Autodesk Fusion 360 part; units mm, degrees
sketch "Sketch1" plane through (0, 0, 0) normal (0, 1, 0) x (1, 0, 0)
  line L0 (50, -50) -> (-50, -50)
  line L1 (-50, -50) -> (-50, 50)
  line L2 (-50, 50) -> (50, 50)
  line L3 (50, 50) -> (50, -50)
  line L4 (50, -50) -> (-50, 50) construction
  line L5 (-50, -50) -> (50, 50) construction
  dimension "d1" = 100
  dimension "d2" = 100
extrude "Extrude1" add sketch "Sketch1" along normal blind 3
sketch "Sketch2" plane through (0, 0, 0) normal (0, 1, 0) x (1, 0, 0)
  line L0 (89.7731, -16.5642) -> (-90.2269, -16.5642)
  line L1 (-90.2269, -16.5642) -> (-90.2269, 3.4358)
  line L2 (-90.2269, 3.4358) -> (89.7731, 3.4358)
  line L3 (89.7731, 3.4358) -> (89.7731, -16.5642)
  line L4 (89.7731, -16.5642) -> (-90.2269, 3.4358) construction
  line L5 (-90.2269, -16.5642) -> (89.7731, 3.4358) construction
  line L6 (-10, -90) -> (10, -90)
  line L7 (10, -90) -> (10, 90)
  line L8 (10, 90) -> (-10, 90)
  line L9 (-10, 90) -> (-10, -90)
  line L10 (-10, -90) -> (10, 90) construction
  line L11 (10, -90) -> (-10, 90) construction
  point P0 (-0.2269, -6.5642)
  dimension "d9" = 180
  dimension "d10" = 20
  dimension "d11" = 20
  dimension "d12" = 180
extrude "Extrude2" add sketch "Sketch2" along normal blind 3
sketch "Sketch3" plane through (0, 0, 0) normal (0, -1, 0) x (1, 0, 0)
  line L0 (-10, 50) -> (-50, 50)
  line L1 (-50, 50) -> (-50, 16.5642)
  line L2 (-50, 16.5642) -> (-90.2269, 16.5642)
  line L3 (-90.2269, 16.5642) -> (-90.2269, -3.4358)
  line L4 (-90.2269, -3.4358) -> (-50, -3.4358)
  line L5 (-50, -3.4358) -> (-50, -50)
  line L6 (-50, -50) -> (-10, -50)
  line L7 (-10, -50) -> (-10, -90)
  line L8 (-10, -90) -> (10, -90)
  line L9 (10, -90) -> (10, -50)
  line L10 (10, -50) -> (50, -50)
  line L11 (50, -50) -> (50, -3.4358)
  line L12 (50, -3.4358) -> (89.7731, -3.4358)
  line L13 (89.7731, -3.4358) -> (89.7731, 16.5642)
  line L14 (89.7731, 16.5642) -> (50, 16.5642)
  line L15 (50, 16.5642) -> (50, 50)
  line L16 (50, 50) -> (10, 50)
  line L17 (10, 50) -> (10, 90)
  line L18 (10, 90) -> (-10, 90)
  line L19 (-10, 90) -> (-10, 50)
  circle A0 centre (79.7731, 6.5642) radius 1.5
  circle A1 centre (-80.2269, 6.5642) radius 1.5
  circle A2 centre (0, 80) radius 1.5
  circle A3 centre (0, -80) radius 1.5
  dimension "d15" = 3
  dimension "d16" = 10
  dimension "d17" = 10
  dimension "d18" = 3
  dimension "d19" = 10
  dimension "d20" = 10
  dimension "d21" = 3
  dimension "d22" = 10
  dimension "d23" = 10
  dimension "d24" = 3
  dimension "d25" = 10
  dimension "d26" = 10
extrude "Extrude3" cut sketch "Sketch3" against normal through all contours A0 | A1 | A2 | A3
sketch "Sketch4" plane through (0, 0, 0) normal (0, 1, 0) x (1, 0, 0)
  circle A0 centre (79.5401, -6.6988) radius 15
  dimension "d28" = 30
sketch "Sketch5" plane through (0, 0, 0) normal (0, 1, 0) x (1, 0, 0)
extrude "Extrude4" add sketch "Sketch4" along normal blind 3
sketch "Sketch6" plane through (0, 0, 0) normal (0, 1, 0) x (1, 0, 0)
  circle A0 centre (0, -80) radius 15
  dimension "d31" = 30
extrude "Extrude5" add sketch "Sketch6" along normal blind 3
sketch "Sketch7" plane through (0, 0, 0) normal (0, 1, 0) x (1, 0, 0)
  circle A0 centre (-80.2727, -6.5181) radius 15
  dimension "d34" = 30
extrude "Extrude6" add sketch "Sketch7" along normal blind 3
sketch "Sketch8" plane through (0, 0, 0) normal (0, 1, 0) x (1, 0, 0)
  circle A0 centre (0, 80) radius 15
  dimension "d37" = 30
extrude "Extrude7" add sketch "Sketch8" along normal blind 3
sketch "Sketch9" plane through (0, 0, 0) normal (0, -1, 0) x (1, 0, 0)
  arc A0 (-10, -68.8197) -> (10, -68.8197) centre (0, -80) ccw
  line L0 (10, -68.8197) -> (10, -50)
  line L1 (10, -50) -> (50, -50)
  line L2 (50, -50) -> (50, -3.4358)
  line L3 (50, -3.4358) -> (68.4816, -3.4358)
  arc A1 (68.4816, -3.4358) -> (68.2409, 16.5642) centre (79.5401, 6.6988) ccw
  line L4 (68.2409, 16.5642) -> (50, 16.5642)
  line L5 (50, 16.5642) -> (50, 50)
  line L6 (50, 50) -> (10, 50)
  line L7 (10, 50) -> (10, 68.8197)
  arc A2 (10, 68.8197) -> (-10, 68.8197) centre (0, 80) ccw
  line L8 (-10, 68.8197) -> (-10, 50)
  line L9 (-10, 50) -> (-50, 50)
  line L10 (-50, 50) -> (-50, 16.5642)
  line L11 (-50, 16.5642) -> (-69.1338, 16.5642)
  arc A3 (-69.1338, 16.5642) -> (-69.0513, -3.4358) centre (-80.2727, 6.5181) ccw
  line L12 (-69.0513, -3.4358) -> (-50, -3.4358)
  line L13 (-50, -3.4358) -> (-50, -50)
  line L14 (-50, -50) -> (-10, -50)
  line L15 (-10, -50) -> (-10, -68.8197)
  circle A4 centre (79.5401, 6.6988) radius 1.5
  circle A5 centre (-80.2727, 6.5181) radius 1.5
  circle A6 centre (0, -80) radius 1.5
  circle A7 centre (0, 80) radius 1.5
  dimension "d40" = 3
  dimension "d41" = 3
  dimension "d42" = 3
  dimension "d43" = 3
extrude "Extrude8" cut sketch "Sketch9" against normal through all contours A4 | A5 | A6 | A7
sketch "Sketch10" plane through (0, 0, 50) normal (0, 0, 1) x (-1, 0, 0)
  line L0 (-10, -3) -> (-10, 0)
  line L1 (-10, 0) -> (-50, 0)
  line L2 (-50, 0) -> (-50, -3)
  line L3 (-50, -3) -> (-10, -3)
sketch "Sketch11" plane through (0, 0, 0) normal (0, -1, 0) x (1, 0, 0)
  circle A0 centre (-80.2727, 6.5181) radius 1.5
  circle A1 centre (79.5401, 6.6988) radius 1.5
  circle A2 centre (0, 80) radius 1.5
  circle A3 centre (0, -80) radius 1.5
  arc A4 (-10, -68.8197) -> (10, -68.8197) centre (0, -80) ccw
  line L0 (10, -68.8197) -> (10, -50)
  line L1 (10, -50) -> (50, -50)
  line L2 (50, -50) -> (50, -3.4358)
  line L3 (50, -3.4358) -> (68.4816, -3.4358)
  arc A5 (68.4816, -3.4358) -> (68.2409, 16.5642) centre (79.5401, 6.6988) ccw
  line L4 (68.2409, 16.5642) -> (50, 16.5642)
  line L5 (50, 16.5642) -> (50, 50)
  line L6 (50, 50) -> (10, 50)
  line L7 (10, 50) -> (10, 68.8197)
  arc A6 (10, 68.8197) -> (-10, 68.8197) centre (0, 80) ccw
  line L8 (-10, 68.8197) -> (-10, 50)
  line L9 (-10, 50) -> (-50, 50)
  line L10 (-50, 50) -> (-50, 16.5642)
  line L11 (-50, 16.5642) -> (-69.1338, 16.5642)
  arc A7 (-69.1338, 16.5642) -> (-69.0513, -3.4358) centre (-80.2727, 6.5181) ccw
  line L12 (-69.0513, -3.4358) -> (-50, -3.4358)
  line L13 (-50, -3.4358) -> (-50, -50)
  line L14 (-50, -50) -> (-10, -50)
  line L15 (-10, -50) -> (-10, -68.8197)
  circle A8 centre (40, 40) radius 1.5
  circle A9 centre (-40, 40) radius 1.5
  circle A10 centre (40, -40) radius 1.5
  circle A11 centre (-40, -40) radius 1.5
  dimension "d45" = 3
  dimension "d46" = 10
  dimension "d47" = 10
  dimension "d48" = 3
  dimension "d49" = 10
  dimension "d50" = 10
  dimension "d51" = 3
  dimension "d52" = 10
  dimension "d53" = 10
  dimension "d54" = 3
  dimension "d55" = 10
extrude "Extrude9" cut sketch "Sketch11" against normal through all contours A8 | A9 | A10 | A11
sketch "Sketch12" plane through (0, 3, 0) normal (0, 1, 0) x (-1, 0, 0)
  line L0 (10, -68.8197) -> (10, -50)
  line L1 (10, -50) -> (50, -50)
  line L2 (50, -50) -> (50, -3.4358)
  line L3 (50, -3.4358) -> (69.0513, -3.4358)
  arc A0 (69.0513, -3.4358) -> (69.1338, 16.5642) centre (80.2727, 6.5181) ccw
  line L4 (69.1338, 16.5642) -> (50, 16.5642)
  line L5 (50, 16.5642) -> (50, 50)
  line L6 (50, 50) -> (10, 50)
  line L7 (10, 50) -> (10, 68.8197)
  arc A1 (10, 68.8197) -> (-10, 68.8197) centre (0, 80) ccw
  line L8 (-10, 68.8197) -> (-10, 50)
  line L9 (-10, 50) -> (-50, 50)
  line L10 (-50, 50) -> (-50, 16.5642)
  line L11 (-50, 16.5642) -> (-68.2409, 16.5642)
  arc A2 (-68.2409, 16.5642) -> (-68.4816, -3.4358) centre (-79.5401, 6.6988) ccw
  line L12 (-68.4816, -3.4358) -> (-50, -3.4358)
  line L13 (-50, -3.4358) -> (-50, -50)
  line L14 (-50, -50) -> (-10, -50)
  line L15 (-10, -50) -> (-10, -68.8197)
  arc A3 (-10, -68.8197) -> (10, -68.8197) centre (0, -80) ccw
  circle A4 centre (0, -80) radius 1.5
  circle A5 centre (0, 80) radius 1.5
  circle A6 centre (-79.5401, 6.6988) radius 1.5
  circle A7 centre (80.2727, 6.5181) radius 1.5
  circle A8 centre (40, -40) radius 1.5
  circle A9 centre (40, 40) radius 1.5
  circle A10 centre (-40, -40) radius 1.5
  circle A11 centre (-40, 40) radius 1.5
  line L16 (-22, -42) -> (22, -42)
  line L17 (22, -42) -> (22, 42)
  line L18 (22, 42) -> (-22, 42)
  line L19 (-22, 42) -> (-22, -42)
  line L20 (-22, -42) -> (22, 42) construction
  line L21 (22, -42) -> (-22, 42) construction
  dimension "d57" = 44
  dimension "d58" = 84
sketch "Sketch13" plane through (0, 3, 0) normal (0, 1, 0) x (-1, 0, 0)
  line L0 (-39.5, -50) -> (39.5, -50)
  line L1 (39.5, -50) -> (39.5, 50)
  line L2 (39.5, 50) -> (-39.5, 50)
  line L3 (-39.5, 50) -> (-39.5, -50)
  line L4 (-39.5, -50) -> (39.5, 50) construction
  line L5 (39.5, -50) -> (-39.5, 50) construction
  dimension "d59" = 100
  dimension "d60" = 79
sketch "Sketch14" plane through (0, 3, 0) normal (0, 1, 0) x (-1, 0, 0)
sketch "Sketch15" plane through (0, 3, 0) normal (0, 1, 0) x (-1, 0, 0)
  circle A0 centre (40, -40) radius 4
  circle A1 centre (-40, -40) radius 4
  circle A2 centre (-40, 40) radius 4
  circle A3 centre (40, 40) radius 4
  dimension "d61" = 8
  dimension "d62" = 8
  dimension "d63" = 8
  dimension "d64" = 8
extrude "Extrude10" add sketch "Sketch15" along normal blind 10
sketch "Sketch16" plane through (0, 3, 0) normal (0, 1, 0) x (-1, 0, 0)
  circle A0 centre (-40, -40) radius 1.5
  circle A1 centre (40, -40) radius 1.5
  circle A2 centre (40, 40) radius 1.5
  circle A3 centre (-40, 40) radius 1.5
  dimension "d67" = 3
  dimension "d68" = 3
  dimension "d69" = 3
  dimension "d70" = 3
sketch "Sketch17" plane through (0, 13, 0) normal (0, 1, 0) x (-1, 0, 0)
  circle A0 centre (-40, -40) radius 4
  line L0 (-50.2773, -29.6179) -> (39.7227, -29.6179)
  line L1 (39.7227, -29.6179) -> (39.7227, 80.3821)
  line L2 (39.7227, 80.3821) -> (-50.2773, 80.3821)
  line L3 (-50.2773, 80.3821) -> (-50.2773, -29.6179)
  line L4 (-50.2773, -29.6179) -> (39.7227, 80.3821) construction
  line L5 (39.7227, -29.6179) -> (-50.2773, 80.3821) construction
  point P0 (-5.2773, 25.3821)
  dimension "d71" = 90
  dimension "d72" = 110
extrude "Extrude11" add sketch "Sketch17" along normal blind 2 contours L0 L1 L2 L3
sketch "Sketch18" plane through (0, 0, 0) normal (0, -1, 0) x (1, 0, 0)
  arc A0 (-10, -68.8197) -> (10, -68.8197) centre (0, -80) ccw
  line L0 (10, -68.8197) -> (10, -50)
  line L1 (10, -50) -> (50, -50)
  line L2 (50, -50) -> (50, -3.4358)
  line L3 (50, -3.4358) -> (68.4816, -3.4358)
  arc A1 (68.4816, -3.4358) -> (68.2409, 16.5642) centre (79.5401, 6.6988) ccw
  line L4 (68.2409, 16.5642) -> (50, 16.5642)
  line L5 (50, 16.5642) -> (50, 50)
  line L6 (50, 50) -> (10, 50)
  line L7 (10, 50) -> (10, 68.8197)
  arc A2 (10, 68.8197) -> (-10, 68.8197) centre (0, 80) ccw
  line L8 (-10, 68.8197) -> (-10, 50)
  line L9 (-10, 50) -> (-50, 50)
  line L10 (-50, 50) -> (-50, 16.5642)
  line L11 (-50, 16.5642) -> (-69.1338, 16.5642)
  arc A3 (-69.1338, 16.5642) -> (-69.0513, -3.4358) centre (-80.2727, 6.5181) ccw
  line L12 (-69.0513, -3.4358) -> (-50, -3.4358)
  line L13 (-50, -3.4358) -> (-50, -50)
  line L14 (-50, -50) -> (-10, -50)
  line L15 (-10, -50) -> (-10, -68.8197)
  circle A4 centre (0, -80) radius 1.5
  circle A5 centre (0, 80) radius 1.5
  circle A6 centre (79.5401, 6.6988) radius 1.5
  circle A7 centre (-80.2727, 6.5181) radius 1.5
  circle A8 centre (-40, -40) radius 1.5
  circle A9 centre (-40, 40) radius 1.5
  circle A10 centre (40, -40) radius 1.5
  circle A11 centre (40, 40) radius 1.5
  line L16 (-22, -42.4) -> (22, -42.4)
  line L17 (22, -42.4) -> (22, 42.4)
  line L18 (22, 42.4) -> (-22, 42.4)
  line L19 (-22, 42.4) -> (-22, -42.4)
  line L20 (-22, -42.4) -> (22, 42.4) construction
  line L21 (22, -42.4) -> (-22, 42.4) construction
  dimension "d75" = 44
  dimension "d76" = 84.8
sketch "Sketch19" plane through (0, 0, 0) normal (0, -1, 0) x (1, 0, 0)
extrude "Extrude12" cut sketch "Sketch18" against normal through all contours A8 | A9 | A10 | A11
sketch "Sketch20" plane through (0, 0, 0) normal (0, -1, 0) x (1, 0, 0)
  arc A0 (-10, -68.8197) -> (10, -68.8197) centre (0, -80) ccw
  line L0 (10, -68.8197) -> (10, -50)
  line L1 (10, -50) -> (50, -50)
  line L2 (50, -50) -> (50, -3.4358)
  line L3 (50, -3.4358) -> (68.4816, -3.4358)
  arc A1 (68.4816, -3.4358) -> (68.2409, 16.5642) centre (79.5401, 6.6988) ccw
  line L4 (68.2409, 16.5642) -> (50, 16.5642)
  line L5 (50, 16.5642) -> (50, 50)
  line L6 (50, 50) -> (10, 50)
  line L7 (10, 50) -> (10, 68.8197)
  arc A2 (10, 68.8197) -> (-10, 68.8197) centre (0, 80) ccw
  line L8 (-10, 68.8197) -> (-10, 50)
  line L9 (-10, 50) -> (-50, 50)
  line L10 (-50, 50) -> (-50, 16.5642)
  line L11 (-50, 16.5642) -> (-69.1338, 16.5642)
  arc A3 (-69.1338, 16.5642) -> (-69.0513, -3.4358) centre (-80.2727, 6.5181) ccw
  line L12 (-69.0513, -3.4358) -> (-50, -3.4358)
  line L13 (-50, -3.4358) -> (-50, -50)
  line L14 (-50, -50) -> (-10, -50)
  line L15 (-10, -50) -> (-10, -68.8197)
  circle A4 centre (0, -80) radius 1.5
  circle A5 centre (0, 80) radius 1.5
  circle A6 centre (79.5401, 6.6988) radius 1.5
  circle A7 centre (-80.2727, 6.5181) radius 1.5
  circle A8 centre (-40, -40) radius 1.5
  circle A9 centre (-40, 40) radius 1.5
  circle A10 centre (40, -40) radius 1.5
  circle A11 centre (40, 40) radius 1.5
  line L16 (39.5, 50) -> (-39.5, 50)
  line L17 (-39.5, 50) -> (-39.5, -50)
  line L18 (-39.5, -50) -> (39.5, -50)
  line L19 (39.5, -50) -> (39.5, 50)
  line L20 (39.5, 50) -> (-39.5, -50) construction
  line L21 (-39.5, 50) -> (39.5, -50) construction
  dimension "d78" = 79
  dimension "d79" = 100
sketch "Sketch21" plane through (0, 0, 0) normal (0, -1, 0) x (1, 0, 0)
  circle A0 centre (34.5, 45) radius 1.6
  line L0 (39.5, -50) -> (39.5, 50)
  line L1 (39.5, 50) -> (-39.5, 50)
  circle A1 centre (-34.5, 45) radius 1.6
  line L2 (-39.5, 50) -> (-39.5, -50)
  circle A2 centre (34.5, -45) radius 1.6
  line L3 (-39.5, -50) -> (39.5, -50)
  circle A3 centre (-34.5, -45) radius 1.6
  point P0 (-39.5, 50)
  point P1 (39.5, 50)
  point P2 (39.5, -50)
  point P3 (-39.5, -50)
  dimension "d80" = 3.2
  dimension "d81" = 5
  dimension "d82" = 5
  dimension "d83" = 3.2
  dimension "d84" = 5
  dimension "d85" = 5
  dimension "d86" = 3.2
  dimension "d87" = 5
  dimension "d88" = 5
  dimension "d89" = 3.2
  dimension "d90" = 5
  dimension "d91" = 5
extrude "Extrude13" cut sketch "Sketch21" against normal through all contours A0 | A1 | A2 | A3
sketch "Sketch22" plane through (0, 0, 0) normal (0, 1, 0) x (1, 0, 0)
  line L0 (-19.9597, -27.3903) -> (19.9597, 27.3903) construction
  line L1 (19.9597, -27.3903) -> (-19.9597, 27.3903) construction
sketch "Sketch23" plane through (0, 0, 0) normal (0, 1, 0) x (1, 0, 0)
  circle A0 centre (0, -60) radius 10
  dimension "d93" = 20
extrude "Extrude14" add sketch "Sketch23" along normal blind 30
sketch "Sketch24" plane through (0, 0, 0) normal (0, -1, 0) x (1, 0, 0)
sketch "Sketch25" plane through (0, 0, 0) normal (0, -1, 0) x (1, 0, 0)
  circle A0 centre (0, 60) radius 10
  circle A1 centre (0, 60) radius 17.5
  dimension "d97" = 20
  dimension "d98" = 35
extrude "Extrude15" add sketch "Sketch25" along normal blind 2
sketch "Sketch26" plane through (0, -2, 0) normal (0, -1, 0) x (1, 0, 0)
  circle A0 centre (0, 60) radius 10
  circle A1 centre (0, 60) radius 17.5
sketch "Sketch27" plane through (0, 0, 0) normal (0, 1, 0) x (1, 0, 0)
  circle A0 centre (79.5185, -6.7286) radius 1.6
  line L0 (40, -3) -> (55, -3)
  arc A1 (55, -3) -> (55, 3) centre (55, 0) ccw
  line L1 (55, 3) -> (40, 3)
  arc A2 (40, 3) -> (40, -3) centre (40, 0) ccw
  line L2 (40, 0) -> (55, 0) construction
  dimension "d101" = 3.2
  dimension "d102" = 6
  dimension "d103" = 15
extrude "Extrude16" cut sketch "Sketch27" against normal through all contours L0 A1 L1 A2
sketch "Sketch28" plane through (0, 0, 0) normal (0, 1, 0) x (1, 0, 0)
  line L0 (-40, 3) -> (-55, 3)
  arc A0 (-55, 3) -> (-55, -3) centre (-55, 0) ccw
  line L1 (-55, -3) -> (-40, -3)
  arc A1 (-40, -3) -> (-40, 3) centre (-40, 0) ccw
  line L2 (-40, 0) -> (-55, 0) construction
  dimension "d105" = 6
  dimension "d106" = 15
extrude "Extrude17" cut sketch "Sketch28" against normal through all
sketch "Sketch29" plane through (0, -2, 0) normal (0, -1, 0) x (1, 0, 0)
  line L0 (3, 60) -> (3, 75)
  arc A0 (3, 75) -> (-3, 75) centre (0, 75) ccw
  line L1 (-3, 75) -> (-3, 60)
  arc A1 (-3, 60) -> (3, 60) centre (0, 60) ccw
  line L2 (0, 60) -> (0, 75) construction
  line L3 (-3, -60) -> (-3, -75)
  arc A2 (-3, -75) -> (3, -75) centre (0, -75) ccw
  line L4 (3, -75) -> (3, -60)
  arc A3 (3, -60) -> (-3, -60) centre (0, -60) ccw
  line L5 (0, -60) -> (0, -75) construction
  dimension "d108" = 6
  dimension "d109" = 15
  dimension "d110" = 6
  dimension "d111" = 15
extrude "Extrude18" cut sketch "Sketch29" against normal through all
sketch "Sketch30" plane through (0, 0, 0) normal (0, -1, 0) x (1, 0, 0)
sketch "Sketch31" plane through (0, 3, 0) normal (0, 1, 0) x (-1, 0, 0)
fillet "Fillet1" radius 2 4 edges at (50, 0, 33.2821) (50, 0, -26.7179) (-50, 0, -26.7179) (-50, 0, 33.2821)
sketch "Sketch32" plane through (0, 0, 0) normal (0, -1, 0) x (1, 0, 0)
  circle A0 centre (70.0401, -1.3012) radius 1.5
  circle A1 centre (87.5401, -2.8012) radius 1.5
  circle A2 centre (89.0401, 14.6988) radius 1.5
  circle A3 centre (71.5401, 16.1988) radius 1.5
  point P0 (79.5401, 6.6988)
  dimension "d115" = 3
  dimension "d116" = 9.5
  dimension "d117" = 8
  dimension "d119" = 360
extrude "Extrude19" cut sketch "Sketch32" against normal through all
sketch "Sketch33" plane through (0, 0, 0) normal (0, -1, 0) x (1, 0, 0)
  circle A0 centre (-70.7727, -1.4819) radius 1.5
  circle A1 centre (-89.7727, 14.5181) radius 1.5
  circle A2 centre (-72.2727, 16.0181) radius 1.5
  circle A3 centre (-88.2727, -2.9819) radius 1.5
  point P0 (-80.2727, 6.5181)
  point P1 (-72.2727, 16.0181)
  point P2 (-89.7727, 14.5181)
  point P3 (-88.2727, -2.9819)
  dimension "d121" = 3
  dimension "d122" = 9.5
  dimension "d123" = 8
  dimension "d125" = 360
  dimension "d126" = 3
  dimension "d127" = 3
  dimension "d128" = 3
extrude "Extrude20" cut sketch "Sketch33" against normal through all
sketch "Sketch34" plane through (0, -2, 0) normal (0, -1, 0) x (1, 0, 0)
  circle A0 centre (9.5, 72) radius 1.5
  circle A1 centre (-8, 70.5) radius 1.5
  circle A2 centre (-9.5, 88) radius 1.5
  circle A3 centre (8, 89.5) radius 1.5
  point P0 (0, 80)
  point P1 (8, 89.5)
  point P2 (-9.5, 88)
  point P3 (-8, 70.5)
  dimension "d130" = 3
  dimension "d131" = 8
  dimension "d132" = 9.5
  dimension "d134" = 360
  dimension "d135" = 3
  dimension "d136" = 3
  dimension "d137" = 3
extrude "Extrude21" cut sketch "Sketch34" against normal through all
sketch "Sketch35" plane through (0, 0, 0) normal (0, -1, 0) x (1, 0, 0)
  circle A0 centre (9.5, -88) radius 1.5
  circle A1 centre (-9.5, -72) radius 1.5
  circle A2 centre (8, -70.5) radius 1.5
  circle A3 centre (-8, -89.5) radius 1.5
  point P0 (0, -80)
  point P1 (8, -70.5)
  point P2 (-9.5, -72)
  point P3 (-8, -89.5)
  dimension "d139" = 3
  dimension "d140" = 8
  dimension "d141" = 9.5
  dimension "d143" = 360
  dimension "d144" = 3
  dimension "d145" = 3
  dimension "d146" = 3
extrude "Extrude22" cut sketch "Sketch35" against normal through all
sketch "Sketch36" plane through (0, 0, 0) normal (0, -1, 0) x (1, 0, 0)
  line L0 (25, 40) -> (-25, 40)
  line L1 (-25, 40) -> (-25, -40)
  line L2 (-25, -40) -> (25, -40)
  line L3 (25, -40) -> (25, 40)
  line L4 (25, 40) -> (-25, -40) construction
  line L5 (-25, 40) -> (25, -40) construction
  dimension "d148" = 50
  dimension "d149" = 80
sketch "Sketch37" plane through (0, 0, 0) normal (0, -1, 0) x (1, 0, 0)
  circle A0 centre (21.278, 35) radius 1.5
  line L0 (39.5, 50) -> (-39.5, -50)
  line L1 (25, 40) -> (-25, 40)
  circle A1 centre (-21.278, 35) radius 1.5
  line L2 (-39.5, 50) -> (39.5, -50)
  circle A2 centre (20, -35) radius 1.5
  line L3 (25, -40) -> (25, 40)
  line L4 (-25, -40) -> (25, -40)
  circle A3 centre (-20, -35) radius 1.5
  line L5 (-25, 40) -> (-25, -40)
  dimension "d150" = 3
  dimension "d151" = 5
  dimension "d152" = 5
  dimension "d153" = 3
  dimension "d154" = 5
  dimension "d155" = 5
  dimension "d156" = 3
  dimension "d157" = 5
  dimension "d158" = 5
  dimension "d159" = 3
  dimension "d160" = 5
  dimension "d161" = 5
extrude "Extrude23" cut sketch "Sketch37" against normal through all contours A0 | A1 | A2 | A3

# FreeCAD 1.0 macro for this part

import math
import FreeCAD as App
import Part
import Sketcher
Q = App.Units.Quantity


def edges_at(feature, points):
    """Names of the edges that pass closest to the given points."""
    edges = feature.Shape.Edges
    near = lambda p: min(range(len(edges)), key=lambda i: edges[i].distToShape(Part.Vertex(*p))[0])
    return sorted({f"Edge{near(p) + 1}" for p in points})

doc = App.newDocument("Part")
body = doc.addObject("PartDesign::Body", "Body")

# Sketch on XZ plane
sketch1 = body.newObject("Sketcher::SketchObject", "Sketch")
sketch1.AttachmentSupport = (doc.getObject("XZ_Plane"), [""])
sketch1.MapMode = "FlatFace"
sketch1.addGeometry([
    Part.LineSegment(App.Vector(-50, 50, 0), App.Vector(50, 50, 0)),
    Part.LineSegment(App.Vector(50, 50, 0), App.Vector(50, -50, 0)),
    Part.LineSegment(App.Vector(50, -50, 0), App.Vector(-50, -50, 0)),
    Part.LineSegment(App.Vector(-50, -50, 0), App.Vector(-50, 50, 0)),
], False)
sketch1.addConstraint([
    Sketcher.Constraint("Coincident", 0, 2, 1, 1),
    Sketcher.Constraint("Coincident", 1, 2, 2, 1),
    Sketcher.Constraint("Coincident", 2, 2, 3, 1),
    Sketcher.Constraint("Coincident", 3, 2, 0, 1),
    Sketcher.Constraint("Horizontal", 0),
    Sketcher.Constraint("Vertical", 1),
    Sketcher.Constraint("Horizontal", 2),
    Sketcher.Constraint("Vertical", 3),
    Sketcher.Constraint("Symmetric", 0, 2, 2, 2, -1, 1),
    Sketcher.Constraint("Equal", 2, 1),
    Sketcher.Constraint("DistanceX", 0, 1, 0, 2, Q("100 mm")),
])
pad1 = body.newObject("PartDesign::Pad", "Pad")
pad1.Profile = sketch1
pad1.Length = 3
pad1.Reversed = True

# Sketch on XZ plane
sketch2 = body.newObject("Sketcher::SketchObject", "Sketch001")
sketch2.AttachmentSupport = (doc.getObject("XZ_Plane"), [""])
sketch2.MapMode = "FlatFace"
sketch2.addGeometry([
    Part.LineSegment(App.Vector(10, 17, 0), App.Vector(90, 17, 0)),  # 0
    Part.LineSegment(App.Vector(90, 17, 0), App.Vector(90, -3, 0)),  # 1
    Part.LineSegment(App.Vector(90, -3, 0), App.Vector(10, -3, 0)),  # 2
    Part.LineSegment(App.Vector(10, -3, 0), App.Vector(10, -90, 0)),  # 3
    Part.LineSegment(App.Vector(10, -90, 0), App.Vector(-10, -90, 0)),  # 4
    Part.LineSegment(App.Vector(-10, -90, 0), App.Vector(-10, -3, 0)),  # 5
    Part.LineSegment(App.Vector(-10, -3, 0), App.Vector(-90, -3, 0)),  # 6
    Part.LineSegment(App.Vector(-90, -3, 0), App.Vector(-90, 17, 0)),  # 7
    Part.LineSegment(App.Vector(-90, 17, 0), App.Vector(-10, 17, 0)),  # 8
    Part.LineSegment(App.Vector(-10, 17, 0), App.Vector(-10, 90, 0)),  # 9
    Part.LineSegment(App.Vector(-10, 90, 0), App.Vector(10, 90, 0)),  # 10
    Part.LineSegment(App.Vector(10, 90, 0), App.Vector(10, 17, 0)),  # 11
], False)
sketch2.addConstraint([
    Sketcher.Constraint("Coincident", 0, 2, 1, 1),
    Sketcher.Constraint("Coincident", 1, 2, 2, 1),
    Sketcher.Constraint("Coincident", 2, 2, 3, 1),
    Sketcher.Constraint("Coincident", 3, 2, 4, 1),
    Sketcher.Constraint("Coincident", 4, 2, 5, 1),
    Sketcher.Constraint("Coincident", 5, 2, 6, 1),
    Sketcher.Constraint("Coincident", 6, 2, 7, 1),
    Sketcher.Constraint("Coincident", 7, 2, 8, 1),
    Sketcher.Constraint("Coincident", 8, 2, 9, 1),
    Sketcher.Constraint("Coincident", 9, 2, 10, 1),
    Sketcher.Constraint("Coincident", 10, 2, 11, 1),
    Sketcher.Constraint("Coincident", 11, 2, 0, 1),
    Sketcher.Constraint("Horizontal", 0),
    Sketcher.Constraint("Vertical", 1),
    Sketcher.Constraint("Horizontal", 2),
    Sketcher.Constraint("Vertical", 3),
    Sketcher.Constraint("Horizontal", 4),
    Sketcher.Constraint("Vertical", 5),
    Sketcher.Constraint("Horizontal", 6),
    Sketcher.Constraint("Vertical", 7),
    Sketcher.Constraint("Horizontal", 8),
    Sketcher.Constraint("Vertical", 9),
    Sketcher.Constraint("Horizontal", 10),
    Sketcher.Constraint("Vertical", 11),
    Sketcher.Constraint("Symmetric", 3, 2, 9, 2, -1, 1),
    Sketcher.Constraint("Symmetric", 2, 2, 5, 2, -2),
    Sketcher.Constraint("Symmetric", 8, 2, 11, 2, -2),
    Sketcher.Constraint("Equal", 10, 1),
    Sketcher.Constraint("DistanceX", 4, 2, 4, 1, Q("20 mm")),
    Sketcher.Constraint("DistanceX", 6, 2, 1, 2, Q("180 mm")),
    Sketcher.Constraint("DistanceY", 3, 2, -1, 1, Q("90 mm")),
    Sketcher.Constraint("DistanceX", 0, 1, 0, 2, Q("79.773 mm")),
    Sketcher.Constraint("DistanceY", 3, 2, 3, 1, Q("86.5642 mm")),
])
pad2 = body.newObject("PartDesign::Pad", "Pad001")
pad2.Profile = sketch2
pad2.Length = 3
pad2.Reversed = True

# Sketch on XZ plane
sketch3 = body.newObject("Sketcher::SketchObject", "Sketch002")
sketch3.AttachmentSupport = (doc.getObject("XZ_Plane"), [""])
sketch3.MapMode = "FlatFace"
sketch3.addGeometry([
    Part.Circle(App.Vector(79.8, 6.6, 0), App.Vector(0, 0, 1), 1.5),
    Part.Circle(App.Vector(-80.2, 6.6, 0), App.Vector(0, 0, 1), 1.5),
    Part.Circle(App.Vector(0, 80, 0), App.Vector(0, 0, 1), 1.5),
    Part.Circle(App.Vector(0, -80, 0), App.Vector(0, 0, 1), 1.5),
], False)
sketch3.addConstraint([
    Sketcher.Constraint("Equal", 0, 1),
    Sketcher.Constraint("Equal", 1, 2),
    Sketcher.Constraint("Equal", 2, 3),
    Sketcher.Constraint("Symmetric", 2, 3, 3, 3, -1, 1),
    Sketcher.Constraint("PointOnObject", 2, 3, -2),
    Sketcher.Constraint("Horizontal", 0, 3, 1, 3),
    Sketcher.Constraint("Diameter", 0, Q("3 mm")),
    Sketcher.Constraint("DistanceY", -1, 1, 2, 3, Q("80 mm")),
    Sketcher.Constraint("DistanceX", 1, 3, 0, 3, Q("160 mm")),
    Sketcher.Constraint("DistanceX", -1, 1, 0, 3, Q("79.773 mm")),
    Sketcher.Constraint("DistanceY", -1, 1, 0, 3, Q("6.5642 mm")),
])
pocket1 = body.newObject("PartDesign::Pocket", "Pocket")
pocket1.Profile = sketch3
pocket1.Type = "ThroughAll"

# Sketch on XZ plane
sketch4 = body.newObject("Sketcher::SketchObject", "Sketch003")
sketch4.AttachmentSupport = (doc.getObject("XZ_Plane"), [""])
sketch4.MapMode = "FlatFace"
sketch4.addGeometry(Part.Circle(App.Vector(80, 7, 0), App.Vector(0, 0, 1), 15), False)
sketch4.addConstraint([
    Sketcher.Constraint("Diameter", 0, Q("30 mm")),
    Sketcher.Constraint("DistanceX", -1, 1, 0, 3, Q("79.54 mm")),
    Sketcher.Constraint("DistanceY", -1, 1, 0, 3, Q("6.6988 mm")),
])
pad3 = body.newObject("PartDesign::Pad", "Pad002")
pad3.Profile = sketch4
pad3.Length = 3
pad3.Reversed = True

# Sketch on XZ plane
sketch5 = body.newObject("Sketcher::SketchObject", "Sketch004")
sketch5.AttachmentSupport = (doc.getObject("XZ_Plane"), [""])
sketch5.MapMode = "FlatFace"
sketch5.addGeometry(Part.Circle(App.Vector(0, 80, 0), App.Vector(0, 0, 1), 15), False)
sketch5.addConstraint([
    Sketcher.Constraint("PointOnObject", 0, 3, -2),
    Sketcher.Constraint("Diameter", 0, Q("30 mm")),
    Sketcher.Constraint("DistanceY", -1, 1, 0, 3, Q("80 mm")),
])
pad4 = body.newObject("PartDesign::Pad", "Pad003")
pad4.Profile = sketch5
pad4.Length = 3
pad4.Reversed = True

# Sketch on XZ plane
sketch6 = body.newObject("Sketcher::SketchObject", "Sketch005")
sketch6.AttachmentSupport = (doc.getObject("XZ_Plane"), [""])
sketch6.MapMode = "FlatFace"
sketch6.addGeometry(Part.Circle(App.Vector(-80, 7, 0), App.Vector(0, 0, 1), 15), False)
sketch6.addConstraint([
    Sketcher.Constraint("Diameter", 0, Q("30 mm")),
    Sketcher.Constraint("DistanceY", -1, 1, 0, 3, Q("6.518 mm")),
    Sketcher.Constraint("DistanceX", 0, 3, -1, 1, Q("80.2727 mm")),
])
pad5 = body.newObject("PartDesign::Pad", "Pad004")
pad5.Profile = sketch6
pad5.Length = 3
pad5.Reversed = True

# Sketch on XZ plane
sketch7 = body.newObject("Sketcher::SketchObject", "Sketch006")
sketch7.AttachmentSupport = (doc.getObject("XZ_Plane"), [""])
sketch7.MapMode = "FlatFace"
sketch7.addGeometry(Part.Circle(App.Vector(0, -80, 0), App.Vector(0, 0, 1), 15), False)
sketch7.addConstraint([
    Sketcher.Constraint("PointOnObject", 0, 3, -2),
    Sketcher.Constraint("Diameter", 0, Q("30 mm")),
    Sketcher.Constraint("DistanceY", 0, 3, -1, 1, Q("80 mm")),
])
pad6 = body.newObject("PartDesign::Pad", "Pad005")
pad6.Profile = sketch7
pad6.Length = 3
pad6.Reversed = True

# Sketch on XZ plane
sketch8 = body.newObject("Sketcher::SketchObject", "Sketch007")
sketch8.AttachmentSupport = (doc.getObject("XZ_Plane"), [""])
sketch8.MapMode = "FlatFace"
sketch8.addGeometry([
    Part.Circle(App.Vector(79.5, 6.7, 0), App.Vector(0, 0, 1), 1.5),
    Part.Circle(App.Vector(-80.3, 6.5, 0), App.Vector(0, 0, 1), 1.5),
    Part.Circle(App.Vector(0, -80, 0), App.Vector(0, 0, 1), 1.5),
    Part.Circle(App.Vector(0, 80, 0), App.Vector(0, 0, 1), 1.5),
], False)
sketch8.addConstraint([
    Sketcher.Constraint("Equal", 0, 1),
    Sketcher.Constraint("Equal", 1, 2),
    Sketcher.Constraint("Equal", 2, 3),
    Sketcher.Constraint("Symmetric", 2, 3, 3, 3, -1, 1),
    Sketcher.Constraint("PointOnObject", 2, 3, -2),
    Sketcher.Constraint("Diameter", 0, Q("3 mm")),
    Sketcher.Constraint("DistanceY", 2, 3, -1, 1, Q("80 mm")),
    Sketcher.Constraint("DistanceX", -1, 1, 0, 3, Q("79.54 mm")),
    Sketcher.Constraint("DistanceY", -1, 1, 1, 3, Q("6.518 mm")),
    Sketcher.Constraint("DistanceY", -1, 1, 0, 3, Q("6.6988 mm")),
    Sketcher.Constraint("DistanceX", 1, 3, -1, 1, Q("80.2727 mm")),
])
pocket2 = body.newObject("PartDesign::Pocket", "Pocket001")
pocket2.Profile = sketch8
pocket2.Type = "ThroughAll"

# Sketch on XZ plane
sketch9 = body.newObject("Sketcher::SketchObject", "Sketch008")
sketch9.AttachmentSupport = (doc.getObject("XZ_Plane"), [""])
sketch9.MapMode = "FlatFace"
sketch9.addGeometry([
    Part.Circle(App.Vector(40, 40, 0), App.Vector(0, 0, 1), 1.5),
    Part.Circle(App.Vector(-40, 40, 0), App.Vector(0, 0, 1), 1.5),
    Part.Circle(App.Vector(40, -40, 0), App.Vector(0, 0, 1), 1.5),
    Part.Circle(App.Vector(-40, -40, 0), App.Vector(0, 0, 1), 1.5),
], False)
sketch9.addConstraint([
    Sketcher.Constraint("Equal", 0, 1),
    Sketcher.Constraint("Equal", 1, 2),
    Sketcher.Constraint("Equal", 2, 3),
    Sketcher.Constraint("Symmetric", 1, 3, 2, 3, -1, 1),
    Sketcher.Constraint("Symmetric", 0, 3, 3, 3, -1, 1),
    Sketcher.Constraint("Symmetric", 0, 3, 1, 3, -2),
    Sketcher.Constraint("Diameter", 0, Q("3 mm")),
    Sketcher.Constraint("DistanceX", -1, 1, 0, 3, Q("40 mm")),
    Sketcher.Constraint("DistanceY", -1, 1, 0, 3, Q("40 mm")),
])
pocket3 = body.newObject("PartDesign::Pocket", "Pocket002")
pocket3.Profile = sketch9
pocket3.Type = "ThroughAll"

# Sketch on XZ plane
sketch10 = body.newObject("Sketcher::SketchObject", "Sketch009")
sketch10.AttachmentSupport = (doc.getObject("XZ_Plane"), [""])
sketch10.MapMode = "FlatFace"
sketch10.AttachmentOffset = App.Placement(App.Vector(0, 0, -3), App.Rotation())
sketch10.addGeometry([
    Part.Circle(App.Vector(-40, -40, 0), App.Vector(0, 0, 1), 4),
    Part.Circle(App.Vector(40, -40, 0), App.Vector(0, 0, 1), 4),
    Part.Circle(App.Vector(40, 40, 0), App.Vector(0, 0, 1), 4),
    Part.Circle(App.Vector(-40, 40, 0), App.Vector(0, 0, 1), 4),
], False)
sketch10.addConstraint([
    Sketcher.Constraint("Equal", 0, 1),
    Sketcher.Constraint("Equal", 1, 2),
    Sketcher.Constraint("Equal", 2, 3),
    Sketcher.Constraint("Symmetric", 0, 3, 2, 3, -1, 1),
    Sketcher.Constraint("Symmetric", 1, 3, 3, 3, -1, 1),
    Sketcher.Constraint("Symmetric", 0, 3, 1, 3, -2),
    Sketcher.Constraint("Diameter", 0, Q("8 mm")),
    Sketcher.Constraint("DistanceX", 0, 3, -1, 1, Q("40 mm")),
    Sketcher.Constraint("DistanceY", 0, 3, -1, 1, Q("40 mm")),
])
pad7 = body.newObject("PartDesign::Pad", "Pad006")
pad7.Profile = sketch10
pad7.Length = 10
pad7.Reversed = True

# Sketch on XZ plane
sketch11 = body.newObject("Sketcher::SketchObject", "Sketch010")
sketch11.AttachmentSupport = (doc.getObject("XZ_Plane"), [""])
sketch11.MapMode = "FlatFace"
sketch11.AttachmentOffset = App.Placement(App.Vector(0, 0, -13), App.Rotation())
sketch11.addGeometry([
    Part.LineSegment(App.Vector(50, 80, 0), App.Vector(50, -30, 0)),
    Part.LineSegment(App.Vector(50, -30, 0), App.Vector(-40, -30, 0)),
    Part.LineSegment(App.Vector(-40, -30, 0), App.Vector(-40, 80, 0)),
    Part.LineSegment(App.Vector(-40, 80, 0), App.Vector(50, 80, 0)),
], False)
sketch11.addConstraint([
    Sketcher.Constraint("Coincident", 0, 2, 1, 1),
    Sketcher.Constraint("Coincident", 1, 2, 2, 1),
    Sketcher.Constraint("Coincident", 2, 2, 3, 1),
    Sketcher.Constraint("Coincident", 3, 2, 0, 1),
    Sketcher.Constraint("Vertical", 0),
    Sketcher.Constraint("Horizontal", 1),
    Sketcher.Constraint("Vertical", 2),
    Sketcher.Constraint("Horizontal", 3),
    Sketcher.Constraint("DistanceX", 1, 2, 1, 1, Q("90 mm")),
    Sketcher.Constraint("DistanceY", 0, 2, 0, 1, Q("110 mm")),
    Sketcher.Constraint("DistanceY", 0, 2, -1, 1, Q("29.618 mm")),
    Sketcher.Constraint("DistanceX", -1, 1, 0, 2, Q("50.2773 mm")),
])
pad8 = body.newObject("PartDesign::Pad", "Pad007")
pad8.Profile = sketch11
pad8.Length = 2
pad8.Reversed = True

# Sketch on XZ plane
sketch12 = body.newObject("Sketcher::SketchObject", "Sketch011")
sketch12.AttachmentSupport = (doc.getObject("XZ_Plane"), [""])
sketch12.MapMode = "FlatFace"
sketch12.addGeometry([
    Part.Circle(App.Vector(-40, -40, 0), App.Vector(0, 0, 1), 1.5),
    Part.Circle(App.Vector(-40, 40, 0), App.Vector(0, 0, 1), 1.5),
    Part.Circle(App.Vector(40, -40, 0), App.Vector(0, 0, 1), 1.5),
    Part.Circle(App.Vector(40, 40, 0), App.Vector(0, 0, 1), 1.5),
], False)
sketch12.addConstraint([
    Sketcher.Constraint("Equal", 0, 1),
    Sketcher.Constraint("Equal", 1, 2),
    Sketcher.Constraint("Equal", 2, 3),
    Sketcher.Constraint("Symmetric", 1, 3, 2, 3, -1, 1),
    Sketcher.Constraint("Symmetric", 0, 3, 3, 3, -1, 1),
    Sketcher.Constraint("Symmetric", 0, 3, 2, 3, -2),
    Sketcher.Constraint("Diameter", 0, Q("3 mm")),
    Sketcher.Constraint("DistanceX", 0, 3, -1, 1, Q("40 mm")),
    Sketcher.Constraint("DistanceY", 0, 3, -1, 1, Q("40 mm")),
])
pocket4 = body.newObject("PartDesign::Pocket", "Pocket003")
pocket4.Profile = sketch12
pocket4.Type = "ThroughAll"

# Sketch on XZ plane
sketch13 = body.newObject("Sketcher::SketchObject", "Sketch012")
sketch13.AttachmentSupport = (doc.getObject("XZ_Plane"), [""])
sketch13.MapMode = "FlatFace"
sketch13.addGeometry([
    Part.Circle(App.Vector(34.5, 45, 0), App.Vector(0, 0, 1), 1.6),
    Part.Circle(App.Vector(-34.5, 45, 0), App.Vector(0, 0, 1), 1.6),
    Part.Circle(App.Vector(34.5, -45, 0), App.Vector(0, 0, 1), 1.6),
    Part.Circle(App.Vector(-34.5, -45, 0), App.Vector(0, 0, 1), 1.6),
], False)
sketch13.addConstraint([
    Sketcher.Constraint("Equal", 0, 1),
    Sketcher.Constraint("Equal", 1, 2),
    Sketcher.Constraint("Equal", 2, 3),
    Sketcher.Constraint("Symmetric", 1, 3, 2, 3, -1, 1),
    Sketcher.Constraint("Symmetric", 0, 3, 3, 3, -1, 1),
    Sketcher.Constraint("Symmetric", 0, 3, 1, 3, -2),
    Sketcher.Constraint("Diameter", 0, Q("3.2 mm")),
    Sketcher.Constraint("DistanceY", -1, 1, 0, 3, Q("45 mm")),
    Sketcher.Constraint("DistanceX", 1, 3, 0, 3, Q("69 mm")),
])
pocket5 = body.newObject("PartDesign::Pocket", "Pocket004")
pocket5.Profile = sketch13
pocket5.Type = "ThroughAll"

# Sketch on XZ plane
sketch14 = body.newObject("Sketcher::SketchObject", "Sketch013")
sketch14.AttachmentSupport = (doc.getObject("XZ_Plane"), [""])
sketch14.MapMode = "FlatFace"
sketch14.addGeometry(Part.Circle(App.Vector(0, 60, 0), App.Vector(0, 0, 1), 10), False)
sketch14.addConstraint([
    Sketcher.Constraint("PointOnObject", 0, 3, -2),
    Sketcher.Constraint("Diameter", 0, Q("20 mm")),
    Sketcher.Constraint("DistanceY", -1, 1, 0, 3, Q("60 mm")),
])
pad9 = body.newObject("PartDesign::Pad", "Pad008")
pad9.Profile = sketch14
pad9.Length = 30
pad9.Reversed = True

# Sketch on XZ plane
sketch15 = body.newObject("Sketcher::SketchObject", "Sketch014")
sketch15.AttachmentSupport = (doc.getObject("XZ_Plane"), [""])
sketch15.MapMode = "FlatFace"
sketch15.addGeometry([
    Part.Circle(App.Vector(0, 60, 0), App.Vector(0, 0, 1), 18),
    Part.Circle(App.Vector(0, 60, 0), App.Vector(0, 0, 1), 10),
], False)
sketch15.addConstraint([
    Sketcher.Constraint("Coincident", 1, 3, 0, 3),
    Sketcher.Constraint("PointOnObject", 0, 3, -2),
    Sketcher.Constraint("Diameter", 0, Q("35 mm")),
    Sketcher.Constraint("Diameter", 1, Q("20 mm")),
    Sketcher.Constraint("DistanceY", -1, 1, 0, 3, Q("60 mm")),
])
pad10 = body.newObject("PartDesign::Pad", "Pad009")
pad10.Profile = sketch15
pad10.Length = 2

# Sketch on XZ plane
sketch16 = body.newObject("Sketcher::SketchObject", "Sketch015")
sketch16.AttachmentSupport = (doc.getObject("XZ_Plane"), [""])
sketch16.MapMode = "FlatFace"
sketch16.addGeometry([
    Part.ArcOfCircle(Part.Circle(App.Vector(40, 0, 0), App.Vector(0, 0, 1), 3), math.radians(90), math.radians(270)),
    Part.LineSegment(App.Vector(40, 3, 0), App.Vector(55, 3, 0)),
    Part.ArcOfCircle(Part.Circle(App.Vector(55, 0, 0), App.Vector(0, 0, 1), 3), math.radians(-90), math.radians(90)),
    Part.LineSegment(App.Vector(55, -3, 0), App.Vector(40, -3, 0)),
], False)
sketch16.addConstraint([
    Sketcher.Constraint("Tangent", 0, 1, 1, 1),
    Sketcher.Constraint("Tangent", 1, 2, 2, 2),
    Sketcher.Constraint("Tangent", 2, 1, 3, 1),
    Sketcher.Constraint("Tangent", 3, 2, 0, 2),
    Sketcher.Constraint("Horizontal", 1),
    Sketcher.Constraint("Horizontal", 3),
    Sketcher.Constraint("PointOnObject", 0, 3, -1),
    Sketcher.Constraint("Radius", 0, Q("3 mm")),
    Sketcher.Constraint("DistanceX", 1, 1, 1, 2, Q("15 mm")),
    Sketcher.Constraint("DistanceX", -1, 1, 0, 3, Q("40 mm")),
])
pocket6 = body.newObject("PartDesign::Pocket", "Pocket005")
pocket6.Profile = sketch16
pocket6.Type = "ThroughAll"
pocket6.Reversed = True

# Sketch on XZ plane
sketch17 = body.newObject("Sketcher::SketchObject", "Sketch016")
sketch17.AttachmentSupport = (doc.getObject("XZ_Plane"), [""])
sketch17.MapMode = "FlatFace"
sketch17.addGeometry([
    Part.ArcOfCircle(Part.Circle(App.Vector(-40, 0, 0), App.Vector(0, 0, 1), 3), math.radians(-90), math.radians(90)),
    Part.LineSegment(App.Vector(-40, -3, 0), App.Vector(-55, -3, 0)),
    Part.ArcOfCircle(Part.Circle(App.Vector(-55, 0, 0), App.Vector(0, 0, 1), 3), math.radians(90), math.radians(270)),
    Part.LineSegment(App.Vector(-55, 3, 0), App.Vector(-40, 3, 0)),
], False)
sketch17.addConstraint([
    Sketcher.Constraint("Tangent", 0, 1, 1, 1),
    Sketcher.Constraint("Tangent", 1, 2, 2, 2),
    Sketcher.Constraint("Tangent", 2, 1, 3, 1),
    Sketcher.Constraint("Tangent", 3, 2, 0, 2),
    Sketcher.Constraint("Horizontal", 1),
    Sketcher.Constraint("Horizontal", 3),
    Sketcher.Constraint("PointOnObject", 0, 3, -1),
    Sketcher.Constraint("Radius", 0, Q("3 mm")),
    Sketcher.Constraint("DistanceX", 1, 2, 1, 1, Q("15 mm")),
    Sketcher.Constraint("DistanceX", 0, 3, -1, 1, Q("40 mm")),
])
pocket7 = body.newObject("PartDesign::Pocket", "Pocket006")
pocket7.Profile = sketch17
pocket7.Type = "ThroughAll"
pocket7.Reversed = True

# Sketch on XZ plane
sketch18 = body.newObject("Sketcher::SketchObject", "Sketch017")
sketch18.AttachmentSupport = (doc.getObject("XZ_Plane"), [""])
sketch18.MapMode = "FlatFace"
sketch18.AttachmentOffset = App.Placement(App.Vector(0, 0, 2), App.Rotation())
sketch18.addGeometry([
    Part.ArcOfCircle(Part.Circle(App.Vector(0, 60, 0), App.Vector(0, 0, 1), 3), math.radians(180), math.radians(360)),  # 0
    Part.LineSegment(App.Vector(3, 60, 0), App.Vector(3, 75, 0)),  # 1
    Part.ArcOfCircle(Part.Circle(App.Vector(0, 75, 0), App.Vector(0, 0, 1), 3), math.radians(0), math.radians(180)),  # 2
    Part.LineSegment(App.Vector(-3, 75, 0), App.Vector(-3, 60, 0)),  # 3
    Part.ArcOfCircle(Part.Circle(App.Vector(0, -60, 0), App.Vector(0, 0, 1), 3), math.radians(0), math.radians(180)),  # 4
    Part.LineSegment(App.Vector(-3, -60, 0), App.Vector(-3, -75, 0)),  # 5
    Part.ArcOfCircle(Part.Circle(App.Vector(0, -75, 0), App.Vector(0, 0, 1), 3), math.radians(180), math.radians(360)),  # 6
    Part.LineSegment(App.Vector(3, -75, 0), App.Vector(3, -60, 0)),  # 7
], False)
sketch18.addConstraint([
    Sketcher.Constraint("Tangent", 0, 2, 1, 1),
    Sketcher.Constraint("Tangent", 1, 2, 2, 1),
    Sketcher.Constraint("Tangent", 2, 2, 3, 1),
    Sketcher.Constraint("Tangent", 3, 2, 0, 1),
    Sketcher.Constraint("Tangent", 4, 2, 5, 1),
    Sketcher.Constraint("Tangent", 5, 2, 6, 1),
    Sketcher.Constraint("Tangent", 6, 2, 7, 1),
    Sketcher.Constraint("Tangent", 7, 2, 4, 1),
    Sketcher.Constraint("Vertical", 1),
    Sketcher.Constraint("Vertical", 3),
    Sketcher.Constraint("Vertical", 5),
    Sketcher.Constraint("Vertical", 7),
    Sketcher.Constraint("Equal", 2, 4),
    Sketcher.Constraint("Symmetric", 0, 3, 4, 3, -1, 1),
    Sketcher.Constraint("Symmetric", 2, 3, 6, 3, -1),
    Sketcher.Constraint("Radius", 0, Q("3 mm")),
    Sketcher.Constraint("DistanceY", 1, 1, 1, 2, Q("15 mm")),
    Sketcher.Constraint("DistanceY", -1, 1, 0, 3, Q("60 mm")),
])
pocket8 = body.newObject("PartDesign::Pocket", "Pocket007")
pocket8.Profile = sketch18
pocket8.Type = "ThroughAll"
doc.recompute()

fillet = body.newObject("PartDesign::Fillet", "Fillet")
fillet.Base = (pocket8, edges_at(pocket8, [
    (50, 0, 33.282),
    (50, 0, -26.718),
    (-50, 0, -26.718),
    (-50, 0, 33.282),
]))
fillet.Radius = 2

# Sketch on XZ plane
sketch19 = body.newObject("Sketcher::SketchObject", "Sketch018")
sketch19.AttachmentSupport = (doc.getObject("XZ_Plane"), [""])
sketch19.MapMode = "FlatFace"
sketch19.addGeometry([
    Part.Circle(App.Vector(70, -1.3, 0), App.Vector(0, 0, 1), 1.5),
    Part.Circle(App.Vector(87.5, -2.8, 0), App.Vector(0, 0, 1), 1.5),
    Part.Circle(App.Vector(89, 14.7, 0), App.Vector(0, 0, 1), 1.5),
    Part.Circle(App.Vector(71.5, 16.2, 0), App.Vector(0, 0, 1), 1.5),
], False)
sketch19.addConstraint([
    Sketcher.Constraint("Equal", 0, 1),
    Sketcher.Constraint("Equal", 1, 2),
    Sketcher.Constraint("Equal", 2, 3),
    Sketcher.Constraint("Diameter", 0, Q("3 mm")),
    Sketcher.Constraint("DistanceX", 0, 3, 2, 3, Q("19 mm")),
    Sketcher.Constraint("DistanceY", 0, 3, 2, 3, Q("16 mm")),
    Sketcher.Constraint("DistanceX", 3, 3, 1, 3, Q("16 mm")),
    Sketcher.Constraint("DistanceY", 1, 3, 3, 3, Q("19 mm")),
    Sketcher.Constraint("DistanceX", 0, 3, 1, 3, Q("17.5 mm")),
    Sketcher.Constraint("DistanceY", 1, 3, 0, 3, Q("1.5 mm")),
    Sketcher.Constraint("DistanceX", -1, 1, 0, 3, Q("70.04 mm")),
    Sketcher.Constraint("DistanceY", 0, 3, -1, 1, Q("1.3012 mm")),
])
pocket9 = body.newObject("PartDesign::Pocket", "Pocket008")
pocket9.Profile = sketch19
pocket9.Type = "ThroughAll"

# Sketch on XZ plane
sketch20 = body.newObject("Sketcher::SketchObject", "Sketch019")
sketch20.AttachmentSupport = (doc.getObject("XZ_Plane"), [""])
sketch20.MapMode = "FlatFace"
sketch20.addGeometry([
    Part.Circle(App.Vector(-70.8, -1.5, 0), App.Vector(0, 0, 1), 1.5),
    Part.Circle(App.Vector(-89.8, 14.5, 0), App.Vector(0, 0, 1), 1.5),
    Part.Circle(App.Vector(-72.3, 16, 0), App.Vector(0, 0, 1), 1.5),
    Part.Circle(App.Vector(-88.3, -3, 0), App.Vector(0, 0, 1), 1.5),
], False)
sketch20.addConstraint([
    Sketcher.Constraint("Equal", 0, 1),
    Sketcher.Constraint("Equal", 1, 2),
    Sketcher.Constraint("Equal", 2, 3),
    Sketcher.Constraint("Diameter", 0, Q("3 mm")),
    Sketcher.Constraint("DistanceX", 1, 3, 0, 3, Q("19 mm")),
    Sketcher.Constraint("DistanceY", 0, 3, 1, 3, Q("16 mm")),
    Sketcher.Constraint("DistanceX", 3, 3, 2, 3, Q("16 mm")),
    Sketcher.Constraint("DistanceY", 3, 3, 2, 3, Q("19 mm")),
    Sketcher.Constraint("DistanceX", 2, 3, 0, 3, Q("1.5 mm")),
    Sketcher.Constraint("DistanceY", 0, 3, 2, 3, Q("17.5 mm")),
    Sketcher.Constraint("DistanceY", 0, 3, -1, 1, Q("1.482 mm")),
    Sketcher.Constraint("DistanceX", 0, 3, -1, 1, Q("70.7727 mm")),
])
pocket10 = body.newObject("PartDesign::Pocket", "Pocket009")
pocket10.Profile = sketch20
pocket10.Type = "ThroughAll"

# Sketch on XZ plane
sketch21 = body.newObject("Sketcher::SketchObject", "Sketch020")
sketch21.AttachmentSupport = (doc.getObject("XZ_Plane"), [""])
sketch21.MapMode = "FlatFace"
sketch21.AttachmentOffset = App.Placement(App.Vector(0, 0, 2), App.Rotation())
sketch21.addGeometry([
    Part.Circle(App.Vector(9.5, 72, 0), App.Vector(0, 0, 1), 1.5),
    Part.Circle(App.Vector(-8, 70.5, 0), App.Vector(0, 0, 1), 1.5),
    Part.Circle(App.Vector(-9.5, 88, 0), App.Vector(0, 0, 1), 1.5),
    Part.Circle(App.Vector(8, 89.5, 0), App.Vector(0, 0, 1), 1.5),
], False)
sketch21.addConstraint([
    Sketcher.Constraint("Equal", 0, 1),
    Sketcher.Constraint("Equal", 1, 2),
    Sketcher.Constraint("Equal", 2, 3),
    Sketcher.Constraint("Diameter", 0, Q("3 mm")),
    Sketcher.Constraint("DistanceX", 1, 3, -1, 1, Q("8 mm")),
    Sketcher.Constraint("DistanceX", -1, 1, 3, 3, Q("8 mm")),
    Sketcher.Constraint("DistanceX", -1, 1, 0, 3, Q("9.5 mm")),
    Sketcher.Constraint("DistanceX", 2, 3, -1, 1, Q("9.5 mm")),
    Sketcher.Constraint("DistanceY", -1, 1, 0, 3, Q("72 mm")),
    Sketcher.Constraint("DistanceY", -1, 1, 2, 3, Q("88 mm")),
    Sketcher.Constraint("DistanceY", 1, 3, 3, 3, Q("19 mm")),
    Sketcher.Constraint("DistanceY", -1, 1, 1, 3, Q("70.5 mm")),
])
pocket11 = body.newObject("PartDesign::Pocket", "Pocket010")
pocket11.Profile = sketch21
pocket11.Type = "ThroughAll"

# Sketch on XZ plane
sketch22 = body.newObject("Sketcher::SketchObject", "Sketch021")
sketch22.AttachmentSupport = (doc.getObject("XZ_Plane"), [""])
sketch22.MapMode = "FlatFace"
sketch22.addGeometry([
    Part.Circle(App.Vector(9.5, -88, 0), App.Vector(0, 0, 1), 1.5),
    Part.Circle(App.Vector(-9.5, -72, 0), App.Vector(0, 0, 1), 1.5),
    Part.Circle(App.Vector(8, -70.5, 0), App.Vector(0, 0, 1), 1.5),
    Part.Circle(App.Vector(-8, -89.5, 0), App.Vector(0, 0, 1), 1.5),
], False)
sketch22.addConstraint([
    Sketcher.Constraint("Equal", 0, 1),
    Sketcher.Constraint("Equal", 1, 2),
    Sketcher.Constraint("Equal", 2, 3),
    Sketcher.Constraint("Diameter", 0, Q("3 mm")),
    Sketcher.Constraint("DistanceX", -1, 1, 2, 3, Q("8 mm")),
    Sketcher.Constraint("DistanceX", 3, 3, -1, 1, Q("8 mm")),
    Sketcher.Constraint("DistanceX", -1, 1, 0, 3, Q("9.5 mm")),
    Sketcher.Constraint("DistanceX", 1, 3, -1, 1, Q("9.5 mm")),
    Sketcher.Constraint("DistanceY", 0, 3, -1, 1, Q("88 mm")),
    Sketcher.Constraint("DistanceY", 1, 3, -1, 1, Q("72 mm")),
    Sketcher.Constraint("DistanceY", 3, 3, 2, 3, Q("19 mm")),
    Sketcher.Constraint("DistanceY", 2, 3, -1, 1, Q("70.5 mm")),
])
pocket12 = body.newObject("PartDesign::Pocket", "Pocket011")
pocket12.Profile = sketch22
pocket12.Type = "ThroughAll"

# Sketch on XZ plane
sketch23 = body.newObject("Sketcher::SketchObject", "Sketch022")
sketch23.AttachmentSupport = (doc.getObject("XZ_Plane"), [""])
sketch23.MapMode = "FlatFace"
sketch23.addGeometry([
    Part.Circle(App.Vector(21.3, 35, 0), App.Vector(0, 0, 1), 1.5),
    Part.Circle(App.Vector(-21.3, 35, 0), App.Vector(0, 0, 1), 1.5),
    Part.Circle(App.Vector(20, -35, 0), App.Vector(0, 0, 1), 1.5),
    Part.Circle(App.Vector(-20, -35, 0), App.Vector(0, 0, 1), 1.5),
], False)
sketch23.addConstraint([
    Sketcher.Constraint("Equal", 0, 1),
    Sketcher.Constraint("Equal", 1, 2),
    Sketcher.Constraint("Equal", 2, 3),
    Sketcher.Constraint("Symmetric", 0, 3, 1, 3, -2),
    Sketcher.Constraint("Symmetric", 2, 3, 3, 3, -2),
    Sketcher.Constraint("Diameter", 0, Q("3 mm")),
    Sketcher.Constraint("DistanceY", -1, 1, 0, 3, Q("35 mm")),
    Sketcher.Constraint("DistanceX", -1, 1, 2, 3, Q("20 mm")),
    Sketcher.Constraint("DistanceY", 2, 3, -1, 1, Q("35 mm")),
    Sketcher.Constraint("DistanceX", -1, 1, 0, 3, Q("21.278 mm")),
])
pocket13 = body.newObject("PartDesign::Pocket", "Pocket012")
pocket13.Profile = sketch23
pocket13.Type = "ThroughAll"

doc.recompute()
